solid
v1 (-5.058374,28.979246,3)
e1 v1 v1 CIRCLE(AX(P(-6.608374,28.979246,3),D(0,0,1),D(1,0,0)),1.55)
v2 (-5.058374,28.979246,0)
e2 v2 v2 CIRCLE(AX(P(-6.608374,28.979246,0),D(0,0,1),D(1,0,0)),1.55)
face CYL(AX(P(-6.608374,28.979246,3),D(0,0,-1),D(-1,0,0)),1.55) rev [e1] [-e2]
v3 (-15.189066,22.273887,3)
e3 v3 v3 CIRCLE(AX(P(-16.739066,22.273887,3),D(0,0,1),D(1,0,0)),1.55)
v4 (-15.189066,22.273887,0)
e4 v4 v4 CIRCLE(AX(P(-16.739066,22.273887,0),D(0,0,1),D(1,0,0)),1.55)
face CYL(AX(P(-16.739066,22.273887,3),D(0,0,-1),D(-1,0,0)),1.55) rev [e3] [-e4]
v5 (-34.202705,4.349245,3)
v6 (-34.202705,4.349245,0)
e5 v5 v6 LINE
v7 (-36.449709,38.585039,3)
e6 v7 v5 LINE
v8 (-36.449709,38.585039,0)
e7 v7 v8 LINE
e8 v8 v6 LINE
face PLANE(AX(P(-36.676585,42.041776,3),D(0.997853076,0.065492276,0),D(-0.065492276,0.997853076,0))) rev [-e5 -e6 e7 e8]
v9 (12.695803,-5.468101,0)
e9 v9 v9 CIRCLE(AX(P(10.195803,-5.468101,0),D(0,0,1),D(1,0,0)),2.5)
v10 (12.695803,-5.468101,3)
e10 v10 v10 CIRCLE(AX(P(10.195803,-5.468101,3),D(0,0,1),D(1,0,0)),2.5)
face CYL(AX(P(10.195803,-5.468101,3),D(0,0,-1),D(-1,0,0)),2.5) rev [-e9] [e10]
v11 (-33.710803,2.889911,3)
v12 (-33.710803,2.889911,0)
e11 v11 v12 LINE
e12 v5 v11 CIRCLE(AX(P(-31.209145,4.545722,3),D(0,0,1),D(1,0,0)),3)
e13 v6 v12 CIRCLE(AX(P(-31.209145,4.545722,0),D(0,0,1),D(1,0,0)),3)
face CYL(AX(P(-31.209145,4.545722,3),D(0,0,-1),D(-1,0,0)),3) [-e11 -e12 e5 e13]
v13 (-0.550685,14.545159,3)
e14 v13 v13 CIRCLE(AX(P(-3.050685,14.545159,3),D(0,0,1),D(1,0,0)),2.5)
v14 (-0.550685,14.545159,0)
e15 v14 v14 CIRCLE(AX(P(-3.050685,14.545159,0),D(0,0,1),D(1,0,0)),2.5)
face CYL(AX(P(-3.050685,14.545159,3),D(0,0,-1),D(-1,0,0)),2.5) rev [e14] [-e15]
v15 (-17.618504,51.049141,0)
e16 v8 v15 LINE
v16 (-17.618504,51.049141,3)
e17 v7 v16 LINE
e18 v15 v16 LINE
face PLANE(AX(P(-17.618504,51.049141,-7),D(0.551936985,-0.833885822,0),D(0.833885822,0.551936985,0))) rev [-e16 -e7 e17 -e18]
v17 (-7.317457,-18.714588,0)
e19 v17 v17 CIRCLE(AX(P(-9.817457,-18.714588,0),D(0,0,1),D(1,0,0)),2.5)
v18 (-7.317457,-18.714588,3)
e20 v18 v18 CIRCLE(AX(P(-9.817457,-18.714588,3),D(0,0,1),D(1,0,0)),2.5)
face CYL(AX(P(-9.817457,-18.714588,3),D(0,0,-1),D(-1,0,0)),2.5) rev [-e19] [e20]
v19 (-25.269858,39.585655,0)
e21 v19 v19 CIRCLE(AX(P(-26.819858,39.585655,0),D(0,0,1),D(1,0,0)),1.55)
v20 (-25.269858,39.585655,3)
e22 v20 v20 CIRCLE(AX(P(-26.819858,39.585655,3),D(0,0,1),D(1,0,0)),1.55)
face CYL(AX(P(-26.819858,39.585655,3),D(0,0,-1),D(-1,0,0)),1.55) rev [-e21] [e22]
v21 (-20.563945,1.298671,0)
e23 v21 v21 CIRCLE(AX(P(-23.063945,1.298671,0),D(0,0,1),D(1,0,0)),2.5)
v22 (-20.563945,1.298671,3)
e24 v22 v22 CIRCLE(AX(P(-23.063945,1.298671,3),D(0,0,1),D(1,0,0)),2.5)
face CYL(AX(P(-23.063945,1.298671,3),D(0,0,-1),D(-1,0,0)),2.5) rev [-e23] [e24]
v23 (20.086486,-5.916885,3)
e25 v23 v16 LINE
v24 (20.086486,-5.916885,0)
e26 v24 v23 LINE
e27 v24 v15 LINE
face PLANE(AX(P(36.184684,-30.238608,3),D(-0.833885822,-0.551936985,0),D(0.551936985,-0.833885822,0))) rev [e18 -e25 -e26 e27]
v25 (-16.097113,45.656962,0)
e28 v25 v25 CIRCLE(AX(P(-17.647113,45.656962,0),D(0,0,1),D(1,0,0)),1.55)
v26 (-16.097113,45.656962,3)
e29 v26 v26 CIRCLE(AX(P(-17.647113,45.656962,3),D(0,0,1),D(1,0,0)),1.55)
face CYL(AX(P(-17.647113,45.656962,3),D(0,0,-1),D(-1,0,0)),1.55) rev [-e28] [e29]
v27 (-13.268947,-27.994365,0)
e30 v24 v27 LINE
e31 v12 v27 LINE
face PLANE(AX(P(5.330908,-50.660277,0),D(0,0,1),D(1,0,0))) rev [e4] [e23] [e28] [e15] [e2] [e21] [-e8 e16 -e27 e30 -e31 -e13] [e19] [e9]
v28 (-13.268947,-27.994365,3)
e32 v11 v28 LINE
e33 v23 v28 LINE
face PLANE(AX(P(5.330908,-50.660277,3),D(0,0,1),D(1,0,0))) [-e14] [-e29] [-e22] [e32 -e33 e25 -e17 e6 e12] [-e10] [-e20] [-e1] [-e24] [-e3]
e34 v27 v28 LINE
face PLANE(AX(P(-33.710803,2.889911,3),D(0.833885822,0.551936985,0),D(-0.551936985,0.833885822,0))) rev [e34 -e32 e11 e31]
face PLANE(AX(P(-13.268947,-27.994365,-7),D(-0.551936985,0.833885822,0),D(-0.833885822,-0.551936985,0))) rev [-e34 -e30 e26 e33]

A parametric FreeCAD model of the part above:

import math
import FreeCAD as App
import Part
import Sketcher
Q = App.Units.Quantity

doc = App.newDocument("Part")
body = doc.addObject("PartDesign::Body", "Body")

sketch1 = body.newObject("Sketcher::SketchObject", "Sketch")
sketch1.AttachmentSupport = (doc.getObject("XY_Plane"), [""])
sketch1.MapMode = "FlatFace"
sketch1.addGeometry(Part.LineSegment(App.Vector(7, -53.2, 0), App.Vector(35.3, -34.4, 0)), False)
sketch1.addGeometry(Part.ArcOfCircle(Part.Circle(App.Vector(33.7, -31.9, 0), App.Vector(0, 0, 1), 3), math.radians(-57), math.radians(34)), False)
sketch1.addGeometry(Part.LineSegment(App.Vector(36.2, -30.2, 0), App.Vector(-18.5, 52.3, 0)), False)
sketch1.addGeometry(Part.ArcOfCircle(Part.Circle(App.Vector(-21, 50.7, 0), App.Vector(0, 0, 1), 3), math.radians(34), math.radians(123)), False)
sketch1.addGeometry(Part.LineSegment(App.Vector(-22.6, 53.2, 0), App.Vector(-35.3, 44.7, 0)), False)
sketch1.addGeometry(Part.ArcOfCircle(Part.Circle(App.Vector(-33.7, 42.2, 0), App.Vector(0, 0, 1), 3), math.radians(124), math.radians(184)), False)
sketch1.addGeometry(Part.LineSegment(App.Vector(-36.7, 42, 0), App.Vector(-34.2, 4.3, 0)), False)
sketch1.addGeometry(Part.ArcOfCircle(Part.Circle(App.Vector(-31.2, 4.5, 0), App.Vector(0, 0, 1), 3), math.radians(-176), math.radians(-146)), False)
sketch1.addGeometry(Part.LineSegment(App.Vector(-33.7, 2.9, 0), App.Vector(2.8, -52.3, 0)), False)
sketch1.addGeometry(Part.ArcOfCircle(Part.Circle(App.Vector(5.3, -50.7, 0), App.Vector(0, 0, 1), 3), math.radians(-146), math.radians(-57)), False)
sketch1.addGeometry(Part.Circle(App.Vector(-1, -32.1, 0), App.Vector(0, 0, 1), 1.5), False)
sketch1.addGeometry(Part.ArcOfCircle(Part.Circle(App.Vector(-9.8, -18.7, 0), App.Vector(0, 0, 1), 2.5), math.radians(34), math.radians(213)), False)
sketch1.addGeometry(Part.ArcOfCircle(Part.Circle(App.Vector(-9.8, -18.7, 0), App.Vector(0, 0, 1), 2.5), math.radians(-147), math.radians(34)), False)
sketch1.addGeometry(Part.Circle(App.Vector(6.7, -43.7, 0), App.Vector(0, 0, 1), 1.5), False)
sketch1.addGeometry(Part.Circle(App.Vector(26.8, -30.5, 0), App.Vector(0, 0, 1), 1.5), False)
sketch1.addGeometry(Part.ArcOfCircle(Part.Circle(App.Vector(10.2, -5.5, 0), App.Vector(0, 0, 1), 2.5), math.radians(34), math.radians(213)), False)
sketch1.addGeometry(Part.ArcOfCircle(Part.Circle(App.Vector(10.2, -5.5, 0), App.Vector(0, 0, 1), 2.5), math.radians(-146), math.radians(33)), False)
sketch1.addGeometry(Part.ArcOfCircle(Part.Circle(App.Vector(19, -18.8, 0), App.Vector(0, 0, 1), 1.5), math.radians(34), math.radians(213)), False)
sketch1.addGeometry(Part.ArcOfCircle(Part.Circle(App.Vector(19, -18.8, 0), App.Vector(0, 0, 1), 1.5), math.radians(-146), math.radians(33)), False)
sketch1.addGeometry(Part.ArcOfCircle(Part.Circle(App.Vector(-23.1, 1.3, 0), App.Vector(0, 0, 1), 2.5), math.radians(33), math.radians(213)), False)
sketch1.addGeometry(Part.ArcOfCircle(Part.Circle(App.Vector(-23.1, 1.3, 0), App.Vector(0, 0, 1), 2.5), math.radians(-147), math.radians(33)), False)
sketch1.addGeometry(Part.ArcOfCircle(Part.Circle(App.Vector(-16.7, 22.3, 0), App.Vector(0, 0, 1), 1.6), math.radians(33), math.radians(214)), False)
sketch1.addGeometry(Part.ArcOfCircle(Part.Circle(App.Vector(-16.7, 22.3, 0), App.Vector(0, 0, 1), 1.6), math.radians(-147), math.radians(34)), False)
sketch1.addGeometry(Part.ArcOfCircle(Part.Circle(App.Vector(-3.1, 14.5, 0), App.Vector(0, 0, 1), 2.5), math.radians(33), math.radians(214)), False)
sketch1.addGeometry(Part.ArcOfCircle(Part.Circle(App.Vector(-3.1, 14.5, 0), App.Vector(0, 0, 1), 2.5), math.radians(-147), math.radians(34)), False)
sketch1.addGeometry(Part.Circle(App.Vector(-26.8, 39.6, 0), App.Vector(0, 0, 1), 1.6), False)
sketch1.addGeometry(Part.ArcOfCircle(Part.Circle(App.Vector(-17.6, 45.7, 0), App.Vector(0, 0, 1), 1.6), math.radians(33), math.radians(213)), False)
sketch1.addGeometry(Part.ArcOfCircle(Part.Circle(App.Vector(-17.6, 45.7, 0), App.Vector(0, 0, 1), 1.6), math.radians(-147), math.radians(33)), False)
sketch1.addGeometry(Part.Circle(App.Vector(-6.6, 29, 0), App.Vector(0, 0, 1), 1.6), False)
sketch1.addConstraint(Sketcher.Constraint("Tangent", 0, 2, 1, 1))
sketch1.addConstraint(Sketcher.Constraint("Tangent", 1, 2, 2, 1))
sketch1.addConstraint(Sketcher.Constraint("Tangent", 2, 2, 3, 1))
sketch1.addConstraint(Sketcher.Constraint("Tangent", 3, 2, 4, 1))
sketch1.addConstraint(Sketcher.Constraint("Tangent", 4, 2, 5, 1))
sketch1.addConstraint(Sketcher.Constraint("Tangent", 5, 2, 6, 1))
sketch1.addConstraint(Sketcher.Constraint("Tangent", 6, 2, 7, 1))
sketch1.addConstraint(Sketcher.Constraint("Tangent", 7, 2, 8, 1))
sketch1.addConstraint(Sketcher.Constraint("Tangent", 8, 2, 9, 1))
sketch1.addConstraint(Sketcher.Constraint("Tangent", 9, 2, 0, 1))
sketch1.addConstraint(Sketcher.Constraint("Tangent", 11, 1, 12, 2))
sketch1.addConstraint(Sketcher.Constraint("Coincident", 12, 1, 11, 2))
sketch1.addConstraint(Sketcher.Constraint("Tangent", 15, 1, 16, 2))
sketch1.addConstraint(Sketcher.Constraint("Coincident", 16, 1, 15, 2))
sketch1.addConstraint(Sketcher.Constraint("Tangent", 17, 1, 18, 2))
sketch1.addConstraint(Sketcher.Constraint("Coincident", 18, 1, 17, 2))
sketch1.addConstraint(Sketcher.Constraint("Tangent", 19, 1, 20, 2))
sketch1.addConstraint(Sketcher.Constraint("Coincident", 20, 1, 19, 2))
sketch1.addConstraint(Sketcher.Constraint("Tangent", 21, 1, 22, 2))
sketch1.addConstraint(Sketcher.Constraint("Coincident", 22, 1, 21, 2))
sketch1.addConstraint(Sketcher.Constraint("Tangent", 23, 1, 24, 2))
sketch1.addConstraint(Sketcher.Constraint("Coincident", 24, 1, 23, 2))
sketch1.addConstraint(Sketcher.Constraint("Tangent", 26, 1, 27, 2))
sketch1.addConstraint(Sketcher.Constraint("Coincident", 27, 1, 26, 2))
sketch1.addConstraint(Sketcher.Constraint("Equal", 1, 3))
sketch1.addConstraint(Sketcher.Constraint("Equal", 3, 5))
sketch1.addConstraint(Sketcher.Constraint("Equal", 5, 7))
sketch1.addConstraint(Sketcher.Constraint("Equal", 7, 9))
sketch1.addConstraint(Sketcher.Constraint("Equal", 10, 13))
sketch1.addConstraint(Sketcher.Constraint("Equal", 13, 14))
sketch1.addConstraint(Sketcher.Constraint("Equal", 12, 15))
sketch1.addConstraint(Sketcher.Constraint("Equal", 14, 17))
sketch1.addConstraint(Sketcher.Constraint("Equal", 16, 19))
sketch1.addConstraint(Sketcher.Constraint("Equal", 20, 23))
sketch1.addConstraint(Sketcher.Constraint("Equal", 22, 25))
sketch1.addConstraint(Sketcher.Constraint("Equal", 25, 26))
sketch1.addConstraint(Sketcher.Constraint("Equal", 27, 28))
sketch1.addConstraint(Sketcher.Constraint("Perpendicular", 0, 2))
sketch1.addConstraint(Sketcher.Constraint("Perpendicular", 2, 4))
sketch1.addConstraint(Sketcher.Constraint("Perpendicular", 4, 8))
sketch1.addConstraint(Sketcher.Constraint("Diameter", 10, 3.0))
sketch1.addConstraint(Sketcher.Constraint("Radius", 1, 3.0))
sketch1.addConstraint(Sketcher.Constraint("Diameter", 25, 3.1))
sketch1.addConstraint(Sketcher.Constraint("Radius", 11, 2.5))
sketch1.addConstraint(Sketcher.Constraint("Distance", 0, 34.0))
sketch1.addConstraint(Sketcher.Constraint("Distance", 2, 99.0))
sketch1.addConstraint(Sketcher.Constraint("Angle", 0, Q("33.5 deg")))
sketch1.addConstraint(Sketcher.Constraint("DistanceY", -1, 1, 23, 1, 15.925002))
sketch1.addConstraint(Sketcher.Constraint("DistanceY", 9, 3, 7, 3, 55.205999))
sketch1.addConstraint(Sketcher.Constraint("DistanceY", 15, 3, -1, 1, 5.468101))
sketch1.addConstraint(Sketcher.Constraint("DistanceX", 24, 1, -1, 1, 5.1354))
sketch1.addConstraint(Sketcher.Constraint("DistanceY", 13, 3, 10, 3, 11.674402))
sketch1.addConstraint(Sketcher.Constraint("DistanceY", 9, 3, 14, 3, 20.175602))
sketch1.addConstraint(Sketcher.Constraint("DistanceY", 14, 3, 17, 3, 11.674402))
sketch1.addConstraint(Sketcher.Constraint("DistanceX", 7, 3, 19, 3, 8.145201))
sketch1.addConstraint(Sketcher.Constraint("DistanceX", 4, 2, 3, 3, 14.380102))
sketch1.addConstraint(Sketcher.Constraint("DistanceX", 8, 2, 13, 3, 3.911402))
sketch1.addConstraint(Sketcher.Constraint("DistanceY", 8, 2, 11, 3, 33.6015))
sketch1.addConstraint(Sketcher.Constraint("DistanceX", 3, 3, 27, 1, 2.019099))
sketch1.addConstraint(Sketcher.Constraint("DistanceY", 1, 3, -1, 1, 31.894419))
sketch1.addConstraint(Sketcher.Constraint("DistanceX", -1, 1, 9, 3, 5.330908))
sketch1.addConstraint(Sketcher.Constraint("DistanceY", 10, 3, -1, 1, 32.056761))
sketch1.addConstraint(Sketcher.Constraint("DistanceY", -1, 1, 19, 3, 1.298671))
sketch1.addConstraint(Sketcher.Constraint("DistanceY", -1, 1, 23, 3, 14.545159))
sketch1.addConstraint(Sketcher.Constraint("DistanceX", 12, 1, -1, 1, 11.902172))
sketch1.addConstraint(Sketcher.Constraint("DistanceY", 12, 1, -1, 1, 20.094431))
sketch1.addConstraint(Sketcher.Constraint("DistanceY", 15, 1, -1, 1, 4.088258))
sketch1.addConstraint(Sketcher.Constraint("DistanceX", -1, 1, 16, 1, 8.111088))
sketch1.addConstraint(Sketcher.Constraint("DistanceY", 17, 1, -1, 1, 17.982368))
sketch1.addConstraint(Sketcher.Constraint("DistanceY", 18, 1, -1, 1, 19.638179))
sketch1.addConstraint(Sketcher.Constraint("DistanceX", 19, 1, -1, 1, 20.97923))
sketch1.addConstraint(Sketcher.Constraint("DistanceX", 20, 1, -1, 1, 25.148659))
sketch1.addConstraint(Sketcher.Constraint("DistanceY", -1, 1, 21, 1, 23.129389))
sketch1.addConstraint(Sketcher.Constraint("DistanceX", 22, 1, -1, 1, 18.031589))
sketch1.addConstraint(Sketcher.Constraint("DistanceX", 23, 1, -1, 1, 0.965971))
sketch1.addConstraint(Sketcher.Constraint("DistanceX", 26, 1, -1, 1, 16.35459))
sketch1.addConstraint(Sketcher.Constraint("DistanceY", -1, 1, 27, 1, 44.80146))
sketch1.addConstraint(Sketcher.Constraint("DistanceX", 10, 3, 1, 3, 34.669492))
sketch1.addConstraint(Sketcher.Constraint("DistanceX", 13, 3, 14, 3, 20.01326))
sketch1.addConstraint(Sketcher.Constraint("DistanceX", 11, 3, 15, 3, 20.01326))
sketch1.addConstraint(Sketcher.Constraint("DistanceX", 15, 3, 17, 3, 8.830992))
sketch1.addConstraint(Sketcher.Constraint("DistanceX", 19, 3, 21, 3, 6.324879))
sketch1.addConstraint(Sketcher.Constraint("DistanceY", 21, 3, 3, 3, 28.38639))
sketch1.addConstraint(Sketcher.Constraint("DistanceX", 5, 3, 25, 3, 6.863169))
sketch1.addConstraint(Sketcher.Constraint("DistanceY", 25, 3, 3, 3, 11.074622))
sketch1.addConstraint(Sketcher.Constraint("DistanceX", 3, 3, 26, 3, 3.311622))
sketch1.addConstraint(Sketcher.Constraint("DistanceY", 21, 3, 28, 3, 6.705359))
sketch1.addConstraint(Sketcher.Constraint("DistanceX", 28, 3, 23, 3, 3.557689))
sketch1.addConstraint(Sketcher.Constraint("DistanceX", 12, 1, 11, 1, 4.169429))
pad1 = body.newObject("PartDesign::Pad", "Pad")
pad1.Profile = sketch1
pad1.Length = 3

sketch2 = body.newObject("Sketcher::SketchObject", "Sketch001")
sketch2.AttachmentSupport = (doc.getObject("XY_Plane"), [""])
sketch2.MapMode = "FlatFace"
sketch2.AttachmentOffset = App.Placement(App.Vector(0, 0, 3), App.Rotation())
sketch2.addGeometry(Part.LineSegment(App.Vector(-36.4, 38.6, 0), App.Vector(-17.6, 51, 0)), False)
sketch2.addGeometry(Part.LineSegment(App.Vector(-17.6, 51, 0), App.Vector(-20.2, 55, 0)), False)
sketch2.addGeometry(Part.LineSegment(App.Vector(-20.2, 55, 0), App.Vector(-39.1, 42.6, 0)), False)
sketch2.addGeometry(Part.LineSegment(App.Vector(-39.1, 42.6, 0), App.Vector(-36.4, 38.6, 0)), False)
sketch2.addGeometry(Part.LineSegment(App.Vector(22.3, -9.3, 0), App.Vector(-11.1, -31.3, 0)), False)
sketch2.addGeometry(Part.LineSegment(App.Vector(-11.1, -31.3, 0), App.Vector(5, -55.6, 0)), False)
sketch2.addGeometry(Part.LineSegment(App.Vector(5, -55.6, 0), App.Vector(41.7, -31.3, 0)), False)
sketch2.addGeometry(Part.LineSegment(App.Vector(41.7, -31.3, 0), App.Vector(22.3, -9.3, 0)), False)
sketch2.addConstraint(Sketcher.Constraint("Coincident", 0, 2, 1, 1))
sketch2.addConstraint(Sketcher.Constraint("Coincident", 1, 2, 2, 1))
sketch2.addConstraint(Sketcher.Constraint("Coincident", 2, 2, 3, 1))
sketch2.addConstraint(Sketcher.Constraint("Coincident", 3, 2, 0, 1))
sketch2.addConstraint(Sketcher.Constraint("Coincident", 4, 2, 5, 1))
sketch2.addConstraint(Sketcher.Constraint("Coincident", 5, 2, 6, 1))
sketch2.addConstraint(Sketcher.Constraint("Coincident", 6, 2, 7, 1))
sketch2.addConstraint(Sketcher.Constraint("Coincident", 7, 2, 4, 1))
sketch2.addConstraint(Sketcher.Constraint("Perpendicular", 0, 1))
sketch2.addConstraint(Sketcher.Constraint("Perpendicular", 1, 2))
sketch2.addConstraint(Sketcher.Constraint("Perpendicular", 2, 3))
sketch2.addConstraint(Sketcher.Constraint("Perpendicular", 3, 4))
sketch2.addConstraint(Sketcher.Constraint("Perpendicular", 4, 5))
sketch2.addConstraint(Sketcher.Constraint("Perpendicular", 5, 6))
sketch2.addConstraint(Sketcher.Constraint("Horizontal", 4, 2, 6, 2))
sketch2.addConstraint(Sketcher.Constraint("Distance", 4, 40.0))
sketch2.addConstraint(Sketcher.Constraint("Angle", 0, Q("33.5 deg")))
sketch2.addConstraint(Sketcher.Constraint("DistanceX", 4, 2, -1, 1, 11.061199))
sketch2.addConstraint(Sketcher.Constraint("DistanceX", 5, 2, 6, 2, 36.7165))
sketch2.addConstraint(Sketcher.Constraint("DistanceY", -1, 1, 0, 2, 51.049141))
sketch2.addConstraint(Sketcher.Constraint("DistanceX", 1, 2, -1, 1, 20.249089))
sketch2.addConstraint(Sketcher.Constraint("DistanceY", -1, 1, 1, 2, 55.023521))
sketch2.addConstraint(Sketcher.Constraint("DistanceY", -1, 1, 2, 2, 42.559419))
sketch2.addConstraint(Sketcher.Constraint("DistanceY", 4, 2, -1, 1, 31.329908))
pocket1 = body.newObject("PartDesign::Pocket", "Pocket")
pocket1.Profile = sketch2
pocket1.Length = 10

sketch3 = body.newObject("Sketcher::SketchObject", "Sketch002")
sketch3.AttachmentSupport = (doc.getObject("XY_Plane"), [""])
sketch3.MapMode = "FlatFace"
sketch3.AttachmentOffset = App.Placement(App.Vector(0, 0, 3), App.Rotation())
sketch3.addGeometry(Part.LineSegment(App.Vector(20, -6, 0), App.Vector(-13, -28, 0)), False)
sketch3.addGeometry(Part.LineSegment(App.Vector(-13, -28, 0), App.Vector(-14, -37, 0)), False)
sketch3.addGeometry(Part.LineSegment(App.Vector(-14, -37, 0), App.Vector(39, -12, 0)), False)
sketch3.addGeometry(Part.LineSegment(App.Vector(39, -12, 0), App.Vector(20, -6, 0)), False)
sketch3.addConstraint(Sketcher.Constraint("Coincident", 0, 2, 1, 1))
sketch3.addConstraint(Sketcher.Constraint("Coincident", 1, 2, 2, 1))
sketch3.addConstraint(Sketcher.Constraint("Coincident", 2, 2, 3, 1))
sketch3.addConstraint(Sketcher.Constraint("Coincident", 3, 2, 0, 1))
sketch3.addConstraint(Sketcher.Constraint("Distance", 0, 40.0))
sketch3.addConstraint(Sketcher.Constraint("Angle", 0, Q("-146.5 deg")))
sketch3.addConstraint(Sketcher.Constraint("Distance", 2, 59.2065))
sketch3.addConstraint(Sketcher.Constraint("Distance", 1, 8.977748))
sketch3.addConstraint(Sketcher.Constraint("Distance", 3, 20.048422))
sketch3.addConstraint(Sketcher.Constraint("DistanceY", 1, 2, -1, 1, 36.930592))
sketch3.addConstraint(Sketcher.Constraint("DistanceY", 1, 2, 2, 2, 25.42216))
sketch3.addConstraint(Sketcher.Constraint("DistanceX", 0, 2, -1, 1, 13.268947))
pocket2 = body.newObject("PartDesign::Pocket", "Pocket001")
pocket2.Profile = sketch3
pocket2.Length = 10

doc.recompute()
